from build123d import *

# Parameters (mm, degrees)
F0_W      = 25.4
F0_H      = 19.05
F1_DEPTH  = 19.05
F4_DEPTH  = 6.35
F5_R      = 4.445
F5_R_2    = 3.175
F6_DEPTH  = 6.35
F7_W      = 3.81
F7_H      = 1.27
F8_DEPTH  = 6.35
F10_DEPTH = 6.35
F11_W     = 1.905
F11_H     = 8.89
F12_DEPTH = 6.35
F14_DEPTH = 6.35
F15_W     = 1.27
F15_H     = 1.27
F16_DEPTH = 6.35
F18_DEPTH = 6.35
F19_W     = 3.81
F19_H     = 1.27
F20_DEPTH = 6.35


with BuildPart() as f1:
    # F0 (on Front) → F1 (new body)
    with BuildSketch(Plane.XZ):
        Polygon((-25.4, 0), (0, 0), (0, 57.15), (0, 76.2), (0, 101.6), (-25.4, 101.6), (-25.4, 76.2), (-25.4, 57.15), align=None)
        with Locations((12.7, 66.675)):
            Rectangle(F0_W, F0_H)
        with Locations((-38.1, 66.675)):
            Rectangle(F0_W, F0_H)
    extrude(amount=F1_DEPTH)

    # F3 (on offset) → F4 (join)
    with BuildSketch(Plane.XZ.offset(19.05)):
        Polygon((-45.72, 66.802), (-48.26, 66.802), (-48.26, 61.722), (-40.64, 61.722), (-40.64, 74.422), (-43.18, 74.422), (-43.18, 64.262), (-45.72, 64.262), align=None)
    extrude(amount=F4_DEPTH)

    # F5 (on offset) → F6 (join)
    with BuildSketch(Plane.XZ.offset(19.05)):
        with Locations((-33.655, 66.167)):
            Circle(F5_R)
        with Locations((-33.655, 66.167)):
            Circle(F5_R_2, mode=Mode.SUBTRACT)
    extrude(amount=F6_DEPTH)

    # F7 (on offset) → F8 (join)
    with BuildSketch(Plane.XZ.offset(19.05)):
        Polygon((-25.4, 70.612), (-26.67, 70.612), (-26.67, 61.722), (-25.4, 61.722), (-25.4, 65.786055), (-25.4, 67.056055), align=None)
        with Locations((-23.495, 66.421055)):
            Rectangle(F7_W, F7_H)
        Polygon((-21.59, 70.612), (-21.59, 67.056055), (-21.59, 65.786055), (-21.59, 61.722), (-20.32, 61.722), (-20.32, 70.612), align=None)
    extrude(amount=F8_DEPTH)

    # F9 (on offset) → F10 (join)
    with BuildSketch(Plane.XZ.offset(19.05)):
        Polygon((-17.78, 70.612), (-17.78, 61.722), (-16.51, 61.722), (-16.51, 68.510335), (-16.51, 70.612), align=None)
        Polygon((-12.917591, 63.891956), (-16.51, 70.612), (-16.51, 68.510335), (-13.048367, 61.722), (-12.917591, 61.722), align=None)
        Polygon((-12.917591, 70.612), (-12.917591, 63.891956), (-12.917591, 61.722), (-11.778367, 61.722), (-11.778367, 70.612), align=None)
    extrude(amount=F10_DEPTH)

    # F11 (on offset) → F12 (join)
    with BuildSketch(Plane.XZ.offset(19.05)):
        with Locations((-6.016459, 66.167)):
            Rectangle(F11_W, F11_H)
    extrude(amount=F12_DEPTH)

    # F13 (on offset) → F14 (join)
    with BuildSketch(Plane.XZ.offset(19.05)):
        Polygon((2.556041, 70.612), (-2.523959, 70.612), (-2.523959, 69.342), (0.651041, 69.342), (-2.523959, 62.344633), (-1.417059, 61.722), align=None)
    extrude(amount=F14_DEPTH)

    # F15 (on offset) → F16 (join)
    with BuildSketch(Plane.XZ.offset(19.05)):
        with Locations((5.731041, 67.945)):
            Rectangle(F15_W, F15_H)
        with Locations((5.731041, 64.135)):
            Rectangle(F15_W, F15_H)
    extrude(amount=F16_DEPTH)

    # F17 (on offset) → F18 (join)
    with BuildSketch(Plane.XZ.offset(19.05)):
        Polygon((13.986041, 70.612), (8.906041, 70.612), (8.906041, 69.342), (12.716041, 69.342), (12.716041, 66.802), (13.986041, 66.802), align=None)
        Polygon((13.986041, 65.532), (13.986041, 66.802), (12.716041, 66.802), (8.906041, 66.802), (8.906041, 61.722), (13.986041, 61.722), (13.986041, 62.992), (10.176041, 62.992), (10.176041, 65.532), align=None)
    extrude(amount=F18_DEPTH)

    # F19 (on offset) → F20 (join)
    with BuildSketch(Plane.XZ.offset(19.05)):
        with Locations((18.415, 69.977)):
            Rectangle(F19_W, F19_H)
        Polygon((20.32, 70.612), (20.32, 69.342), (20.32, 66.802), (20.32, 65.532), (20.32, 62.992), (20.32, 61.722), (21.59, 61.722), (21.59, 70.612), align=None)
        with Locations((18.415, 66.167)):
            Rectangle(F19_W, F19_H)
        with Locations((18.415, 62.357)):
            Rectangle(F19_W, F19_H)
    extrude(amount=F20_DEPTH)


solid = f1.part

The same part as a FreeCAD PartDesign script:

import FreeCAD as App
import Part
import Sketcher
from FreeCAD import Vector
Q = App.Units.Quantity


def add_polygon(sketch, points):
    """Adds a closed chain of lines whose ends are joined by coincident constraints."""
    first, n = sketch.GeometryCount, len(points)
    for a, b in zip(points, points[1:] + points[:1]):
        sketch.addGeometry(Part.LineSegment(App.Vector(*a, 0), App.Vector(*b, 0)), False)
    for i in range(n):
        sketch.addConstraint(Sketcher.Constraint("Coincident", first + i, 2, first + (i + 1) % n, 1))

doc = App.newDocument("Part")
body = doc.addObject("PartDesign::Body", "Body")

# Sketch on XZ plane
sketch1 = body.newObject("Sketcher::SketchObject", "Sketch")
sketch1.AttachmentSupport = (doc.getObject("XZ_Plane"), [""])
sketch1.MapMode = "FlatFace"
add_polygon(sketch1, [(-25, 0), (0, 0), (0, 57), (25, 57), (25, 76), (0, 76), (0, 102), (-25, 102), (-25, 76), (-51, 76), (-51, 57), (-25, 57)])  # lines 0-11
sketch1.addConstraint([
    Sketcher.Constraint("Horizontal", 0),
    Sketcher.Constraint("Vertical", 1),
    Sketcher.Constraint("Horizontal", 2),
    Sketcher.Constraint("Vertical", 3),
    Sketcher.Constraint("Horizontal", 4),
    Sketcher.Constraint("Vertical", 5),
    Sketcher.Constraint("Horizontal", 6),
    Sketcher.Constraint("Vertical", 7),
    Sketcher.Constraint("Horizontal", 8),
    Sketcher.Constraint("Vertical", 9),
    Sketcher.Constraint("Horizontal", 10),
    Sketcher.Constraint("Vertical", 11),
    Sketcher.Constraint("Coincident", 0, 2, -1, 1),
    Sketcher.Constraint("Symmetric", 3, 2, 7, 2, -2),
    Sketcher.Constraint("Symmetric", 2, 2, 10, 2, -2),
    Sketcher.Constraint("PointOnObject", 4, 2, -2),
    Sketcher.Constraint("Equal", 6, 8),
    Sketcher.Constraint("Equal", 10, 5),
    Sketcher.Constraint("DistanceX", 0, 1, 0, 2, Q("1 in")),
    Sketcher.Constraint("DistanceY", -1, 1, 3, 2, Q("3 in")),
    Sketcher.Constraint("DistanceY", 1, 1, 1, 2, Q("2.25 in")),
])
pad1 = body.newObject("PartDesign::Pad", "Pad")
pad1.Profile = sketch1
pad1.Length = Q("0.75 in")

# Sketch on XZ plane
sketch2 = body.newObject("Sketcher::SketchObject", "Sketch001")
sketch2.AttachmentSupport = (doc.getObject("XZ_Plane"), [""])
sketch2.MapMode = "FlatFace"
sketch2.AttachmentOffset = App.Placement(Vector(0, 0, 0.75 * 25.4), App.Rotation())
add_polygon(sketch2, [(-45.7, 66.8), (-48.3, 66.8), (-48.3, 61.7), (-40.6, 61.7), (-40.6, 74.4), (-43.2, 74.4), (-43.2, 64.3), (-45.7, 64.3)])  # lines 0-7
sketch2.addConstraint([
    Sketcher.Constraint("Horizontal", 0),
    Sketcher.Constraint("Vertical", 1),
    Sketcher.Constraint("Horizontal", 2),
    Sketcher.Constraint("Vertical", 3),
    Sketcher.Constraint("Horizontal", 4),
    Sketcher.Constraint("Vertical", 5),
    Sketcher.Constraint("Horizontal", 6),
    Sketcher.Constraint("Vertical", 7),
    Sketcher.Constraint("Equal", 0, 4),
    Sketcher.Constraint("Equal", 4, 6),
    Sketcher.Constraint("Equal", 6, 7),
    Sketcher.Constraint("DistanceX", 0, 2, 0, 1, Q("0.1 in")),
    Sketcher.Constraint("DistanceY", 1, 2, 1, 1, Q("0.2 in")),
    Sketcher.Constraint("DistanceY", 3, 1, 3, 2, Q("0.5 in")),
    Sketcher.Constraint("DistanceX", 0, 2, -1, 1, Q("1.9 in")),
    Sketcher.Constraint("DistanceY", -1, 1, 0, 2, Q("2.63 in")),
])
pad2 = body.newObject("PartDesign::Pad", "Pad001")
pad2.Profile = sketch2
pad2.Length = Q("0.25 in")

# Sketch on XZ plane
sketch3 = body.newObject("Sketcher::SketchObject", "Sketch002")
sketch3.AttachmentSupport = (doc.getObject("XZ_Plane"), [""])
sketch3.MapMode = "FlatFace"
sketch3.AttachmentOffset = App.Placement(Vector(0, 0, 0.75 * 25.4), App.Rotation())
sketch3.addGeometry([
    Part.Circle(Vector(-33.7, 66.2, 0), Vector(0, 0, 1), 4.4),
    Part.Circle(Vector(-33.7, 66.2, 0), Vector(0, 0, 1), 3.2),
], False)
sketch3.addConstraint([
    Sketcher.Constraint("Coincident", 1, 3, 0, 3),
    Sketcher.Constraint("Diameter", 0, Q("0.35 in")),
    Sketcher.Constraint("Diameter", 1, Q("0.25 in")),
    Sketcher.Constraint("DistanceX", 0, 3, -1, 1, Q("1.325 in")),
    Sketcher.Constraint("DistanceY", -1, 1, 0, 3, Q("2.605 in")),
])
pad3 = body.newObject("PartDesign::Pad", "Pad002")
pad3.Profile = sketch3
pad3.Length = Q("0.25 in")

# Sketch on XZ plane
sketch4 = body.newObject("Sketcher::SketchObject", "Sketch003")
sketch4.AttachmentSupport = (doc.getObject("XZ_Plane"), [""])
sketch4.MapMode = "FlatFace"
sketch4.AttachmentOffset = App.Placement(Vector(0, 0, 0.75 * 25.4), App.Rotation())
add_polygon(sketch4, [(-25.4, 70.6), (-26.7, 70.6), (-26.7, 61.7), (-25.4, 61.7), (-25.4, 65.8), (-21.6, 65.8), (-21.6, 61.7), (-20.3, 61.7), (-20.3, 70.6), (-21.6, 70.6), (-21.6, 67.1), (-25.4, 67.1)])  # lines 0-11
sketch4.addConstraint([
    Sketcher.Constraint("Horizontal", 0),
    Sketcher.Constraint("Vertical", 1),
    Sketcher.Constraint("Horizontal", 2),
    Sketcher.Constraint("Vertical", 3),
    Sketcher.Constraint("Horizontal", 4),
    Sketcher.Constraint("Vertical", 5),
    Sketcher.Constraint("Horizontal", 6),
    Sketcher.Constraint("Vertical", 7),
    Sketcher.Constraint("Horizontal", 8),
    Sketcher.Constraint("Vertical", 9),
    Sketcher.Constraint("Horizontal", 10),
    Sketcher.Constraint("Vertical", 11),
    Sketcher.Constraint("Horizontal", 2, 2, 5, 2),
    Sketcher.Constraint("Horizontal", 0, 2, 7, 2),
    Sketcher.Constraint("Vertical", 5, 2, 8, 2),
    Sketcher.Constraint("Vertical", 3, 2, 10, 2),
    Sketcher.Constraint("Equal", 2, 6),
    Sketcher.Constraint("DistanceX", 2, 2, -1, 1, Q("1 in")),
    Sketcher.Constraint("DistanceX", 0, 2, 0, 1, Q("0.05 in")),
    Sketcher.Constraint("DistanceX", 4, 1, 4, 2, Q("0.15 in")),
    Sketcher.Constraint("DistanceY", 1, 2, 1, 1, Q("0.35 in")),
    Sketcher.Constraint("DistanceY", -1, 1, 0, 2, Q("2.78 in")),
    Sketcher.Constraint("DistanceY", 4, 2, 9, 2, Q("0.05 in")),
    Sketcher.Constraint("DistanceY", 3, 1, 3, 2, Q("4.064055 mm")),
])
pad4 = body.newObject("PartDesign::Pad", "Pad003")
pad4.Profile = sketch4
pad4.Length = Q("0.25 in")

# Sketch on XZ plane
sketch5 = body.newObject("Sketcher::SketchObject", "Sketch004")
sketch5.AttachmentSupport = (doc.getObject("XZ_Plane"), [""])
sketch5.MapMode = "FlatFace"
sketch5.AttachmentOffset = App.Placement(Vector(0, 0, 0.75 * 25.4), App.Rotation())
add_polygon(sketch5, [(-17.8, 70.6), (-17.8, 61.7), (-16.5, 61.7), (-16.5, 68.5), (-13, 61.7), (-11.8, 61.7), (-11.8, 70.6), (-12.9, 70.6), (-12.9, 63.9), (-16.5, 70.6)])  # lines 0-9
sketch5.addConstraint([
    Sketcher.Constraint("Vertical", 0),
    Sketcher.Constraint("Horizontal", 1),
    Sketcher.Constraint("Vertical", 2),
    Sketcher.Constraint("Horizontal", 4),
    Sketcher.Constraint("Vertical", 5),
    Sketcher.Constraint("Horizontal", 6),
    Sketcher.Constraint("Vertical", 7),
    Sketcher.Constraint("Horizontal", 9),
    Sketcher.Constraint("Horizontal", 1, 2, 3, 2),
    Sketcher.Constraint("Horizontal", 6, 2, 8, 2),
    Sketcher.Constraint("Vertical", 2, 2, 8, 2),
    Sketcher.Constraint("Equal", 1, 4),
    Sketcher.Constraint("Equal", 3, 8),
    Sketcher.Constraint("Distance", 3, Q("0.3 in")),
    Sketcher.Constraint("DistanceX", 1, 1, 1, 2, Q("0.05 in")),
    Sketcher.Constraint("DistanceY", 0, 2, 0, 1, Q("0.35 in")),
    Sketcher.Constraint("DistanceX", 0, 2, -1, 1, Q("0.7 in")),
    Sketcher.Constraint("DistanceY", -1, 1, 0, 2, Q("2.43 in")),
    Sketcher.Constraint("DistanceX", 6, 2, 6, 1, Q("1.139224 mm")),
    Sketcher.Constraint("DistanceY", 2, 1, 2, 2, Q("6.788335 mm")),
])
pad5 = body.newObject("PartDesign::Pad", "Pad004")
pad5.Profile = sketch5
pad5.Length = Q("0.25 in")

# Sketch on XZ plane
sketch6 = body.newObject("Sketcher::SketchObject", "Sketch005")
sketch6.AttachmentSupport = (doc.getObject("XZ_Plane"), [""])
sketch6.MapMode = "FlatFace"
sketch6.AttachmentOffset = App.Placement(Vector(0, 0, 0.75 * 25.4), App.Rotation())
add_polygon(sketch6, [(-7, 70.6), (-7, 61.7), (-5.1, 61.7), (-5.1, 70.6)])  # lines 0-3
sketch6.addConstraint([
    Sketcher.Constraint("Vertical", 0),
    Sketcher.Constraint("Horizontal", 1),
    Sketcher.Constraint("Vertical", 2),
    Sketcher.Constraint("Horizontal", 3),
    Sketcher.Constraint("DistanceY", 0, 2, 0, 1, Q("0.35 in")),
    Sketcher.Constraint("DistanceX", 1, 1, 1, 2, Q("0.075 in")),
    Sketcher.Constraint("DistanceY", -1, 1, 0, 2, Q("2.43 in")),
    Sketcher.Constraint("DistanceX", 0, 2, -1, 1, Q("6.968959 mm")),
])
pad6 = body.newObject("PartDesign::Pad", "Pad005")
pad6.Profile = sketch6
pad6.Length = Q("0.25 in")

# Sketch on XZ plane
sketch7 = body.newObject("Sketcher::SketchObject", "Sketch006")
sketch7.AttachmentSupport = (doc.getObject("XZ_Plane"), [""])
sketch7.MapMode = "FlatFace"
sketch7.AttachmentOffset = App.Placement(Vector(0, 0, 0.75 * 25.4), App.Rotation())
add_polygon(sketch7, [(2.6, 70.6), (-2.5, 70.6), (-2.5, 69.3), (0.7, 69.3), (-2.5, 62.3), (-1.4, 61.7)])  # lines 0-5
sketch7.addConstraint([
    Sketcher.Constraint("Horizontal", 0),
    Sketcher.Constraint("Vertical", 1),
    Sketcher.Constraint("Horizontal", 2),
    Sketcher.Constraint("Vertical", 1, 2, 3, 2),
    Sketcher.Constraint("DistanceX", 0, 2, 0, 1, Q("0.2 in")),
    Sketcher.Constraint("DistanceY", 1, 2, 1, 1, Q("0.05 in")),
    Sketcher.Constraint("DistanceY", 4, 2, 1, 2, Q("0.3 in")),
    Sketcher.Constraint("Distance", 4, Q("0.05 in")),
    Sketcher.Constraint("DistanceX", 2, 1, 2, 2, Q("0.125 in")),
    Sketcher.Constraint("DistanceY", -1, 1, 0, 2, Q("2.78 in")),
    Sketcher.Constraint("DistanceX", 3, 2, 4, 2, Q("1.1069 mm")),
    Sketcher.Constraint("DistanceX", 0, 2, -1, 1, Q("2.523959 mm")),
])
pad7 = body.newObject("PartDesign::Pad", "Pad006")
pad7.Profile = sketch7
pad7.Length = Q("0.25 in")

# Sketch on XZ plane
sketch8 = body.newObject("Sketcher::SketchObject", "Sketch007")
sketch8.AttachmentSupport = (doc.getObject("XZ_Plane"), [""])
sketch8.MapMode = "FlatFace"
sketch8.AttachmentOffset = App.Placement(Vector(0, 0, 0.75 * 25.4), App.Rotation())
add_polygon(sketch8, [(5.1, 68.6), (5.1, 67.3), (6.4, 67.3), (6.4, 68.6)])  # lines 0-3
add_polygon(sketch8, [(5.1, 64.8), (5.1, 63.5), (6.4, 63.5), (6.4, 64.8)])  # lines 4-7
sketch8.addConstraint([
    Sketcher.Constraint("Vertical", 0),
    Sketcher.Constraint("Horizontal", 1),
    Sketcher.Constraint("Vertical", 2),
    Sketcher.Constraint("Horizontal", 3),
    Sketcher.Constraint("Vertical", 4),
    Sketcher.Constraint("Horizontal", 5),
    Sketcher.Constraint("Vertical", 6),
    Sketcher.Constraint("Horizontal", 7),
    Sketcher.Constraint("Vertical", 3, 2, 4, 2),
    Sketcher.Constraint("Vertical", 2, 2, 5, 2),
    Sketcher.Constraint("Equal", 7, 0),
    Sketcher.Constraint("Equal", 2, 4),
    Sketcher.Constraint("DistanceX", 1, 1, 1, 2, Q("0.05 in")),
    Sketcher.Constraint("DistanceY", -1, 1, 2, 2, Q("2.7 in")),
    Sketcher.Constraint("DistanceY", -1, 1, 4, 2, Q("2.5 in")),
    Sketcher.Constraint("DistanceX", -1, 1, 0, 2, Q("5.096041 mm")),
])
pad8 = body.newObject("PartDesign::Pad", "Pad007")
pad8.Profile = sketch8
pad8.Length = Q("0.25 in")

# Sketch on XZ plane
sketch9 = body.newObject("Sketcher::SketchObject", "Sketch008")
sketch9.AttachmentSupport = (doc.getObject("XZ_Plane"), [""])
sketch9.MapMode = "FlatFace"
sketch9.AttachmentOffset = App.Placement(Vector(0, 0, 0.75 * 25.4), App.Rotation())
add_polygon(sketch9, [(14, 70.6), (8.9, 70.6), (8.9, 69.3), (12.7, 69.3), (12.7, 66.8), (8.9, 66.8), (8.9, 61.7), (14, 61.7), (14, 63), (10.2, 63), (10.2, 65.5), (14, 65.5)])  # lines 0-11
sketch9.addConstraint([
    Sketcher.Constraint("Horizontal", 0),
    Sketcher.Constraint("Vertical", 1),
    Sketcher.Constraint("Horizontal", 2),
    Sketcher.Constraint("Vertical", 3),
    Sketcher.Constraint("Horizontal", 4),
    Sketcher.Constraint("Vertical", 5),
    Sketcher.Constraint("Horizontal", 6),
    Sketcher.Constraint("Vertical", 7),
    Sketcher.Constraint("Horizontal", 8),
    Sketcher.Constraint("Vertical", 9),
    Sketcher.Constraint("Horizontal", 10),
    Sketcher.Constraint("Vertical", 11),
    Sketcher.Constraint("Vertical", 1, 2, 4, 2),
    Sketcher.Constraint("Vertical", 7, 2, 10, 2),
    Sketcher.Constraint("Equal", 4, 8),
    Sketcher.Constraint("Equal", 6, 5),
    Sketcher.Constraint("Equal", 1, 7),
    Sketcher.Constraint("Equal", 3, 9),
    Sketcher.Constraint("DistanceX", 0, 2, 0, 1, Q("0.2 in")),
    Sketcher.Constraint("DistanceY", 3, 2, 3, 1, Q("0.1 in")),
    Sketcher.Constraint("DistanceX", 2, 1, 2, 2, Q("0.15 in")),
    Sketcher.Constraint("DistanceY", 1, 2, 1, 1, Q("0.05 in")),
    Sketcher.Constraint("DistanceY", -1, 1, 0, 2, Q("2.78 in")),
    Sketcher.Constraint("DistanceX", -1, 1, 0, 2, Q("8.906041 mm")),
])
pad9 = body.newObject("PartDesign::Pad", "Pad008")
pad9.Profile = sketch9
pad9.Length = Q("0.25 in")

# Sketch on XZ plane
sketch10 = body.newObject("Sketcher::SketchObject", "Sketch009")
sketch10.AttachmentSupport = (doc.getObject("XZ_Plane"), [""])
sketch10.MapMode = "FlatFace"
sketch10.AttachmentOffset = App.Placement(Vector(0, 0, 0.75 * 25.4), App.Rotation())
add_polygon(sketch10, [(16.5, 70.6), (16.5, 69.3), (20.3, 69.3), (20.3, 66.8), (16.5, 66.8), (16.5, 65.5), (20.3, 65.5), (20.3, 63), (16.5, 63), (16.5, 61.7), (21.6, 61.7), (21.6, 70.6)])  # lines 0-11
sketch10.addConstraint([
    Sketcher.Constraint("Vertical", 0),
    Sketcher.Constraint("Horizontal", 1),
    Sketcher.Constraint("Vertical", 2),
    Sketcher.Constraint("Horizontal", 3),
    Sketcher.Constraint("Vertical", 4),
    Sketcher.Constraint("Horizontal", 5),
    Sketcher.Constraint("Vertical", 6),
    Sketcher.Constraint("Horizontal", 7),
    Sketcher.Constraint("Vertical", 8),
    Sketcher.Constraint("Horizontal", 9),
    Sketcher.Constraint("Vertical", 10),
    Sketcher.Constraint("Horizontal", 11),
    Sketcher.Constraint("Vertical", 0, 2, 3, 2),
    Sketcher.Constraint("Vertical", 2, 2, 5, 2),
    Sketcher.Constraint("Vertical", 4, 2, 7, 2),
    Sketcher.Constraint("Equal", 0, 4),
    Sketcher.Constraint("Equal", 2, 6),
    Sketcher.Constraint("Equal", 4, 8),
    Sketcher.Constraint("DistanceX", 9, 1, 9, 2, Q("0.2 in")),
    Sketcher.Constraint("DistanceY", 2, 2, 2, 1, Q("0.1 in")),
    Sketcher.Constraint("DistanceX", 1, 1, 1, 2, Q("0.15 in")),
    Sketcher.Constraint("DistanceY", 0, 2, 0, 1, Q("0.05 in")),
    Sketcher.Constraint("DistanceX", -1, 1, 1, 2, Q("0.8 in")),
    Sketcher.Constraint("DistanceY", -1, 1, 0, 2, Q("2.73 in")),
])
pad10 = body.newObject("PartDesign::Pad", "Pad009")
pad10.Profile = sketch10
pad10.Length = Q("0.25 in")

doc.recompute()
